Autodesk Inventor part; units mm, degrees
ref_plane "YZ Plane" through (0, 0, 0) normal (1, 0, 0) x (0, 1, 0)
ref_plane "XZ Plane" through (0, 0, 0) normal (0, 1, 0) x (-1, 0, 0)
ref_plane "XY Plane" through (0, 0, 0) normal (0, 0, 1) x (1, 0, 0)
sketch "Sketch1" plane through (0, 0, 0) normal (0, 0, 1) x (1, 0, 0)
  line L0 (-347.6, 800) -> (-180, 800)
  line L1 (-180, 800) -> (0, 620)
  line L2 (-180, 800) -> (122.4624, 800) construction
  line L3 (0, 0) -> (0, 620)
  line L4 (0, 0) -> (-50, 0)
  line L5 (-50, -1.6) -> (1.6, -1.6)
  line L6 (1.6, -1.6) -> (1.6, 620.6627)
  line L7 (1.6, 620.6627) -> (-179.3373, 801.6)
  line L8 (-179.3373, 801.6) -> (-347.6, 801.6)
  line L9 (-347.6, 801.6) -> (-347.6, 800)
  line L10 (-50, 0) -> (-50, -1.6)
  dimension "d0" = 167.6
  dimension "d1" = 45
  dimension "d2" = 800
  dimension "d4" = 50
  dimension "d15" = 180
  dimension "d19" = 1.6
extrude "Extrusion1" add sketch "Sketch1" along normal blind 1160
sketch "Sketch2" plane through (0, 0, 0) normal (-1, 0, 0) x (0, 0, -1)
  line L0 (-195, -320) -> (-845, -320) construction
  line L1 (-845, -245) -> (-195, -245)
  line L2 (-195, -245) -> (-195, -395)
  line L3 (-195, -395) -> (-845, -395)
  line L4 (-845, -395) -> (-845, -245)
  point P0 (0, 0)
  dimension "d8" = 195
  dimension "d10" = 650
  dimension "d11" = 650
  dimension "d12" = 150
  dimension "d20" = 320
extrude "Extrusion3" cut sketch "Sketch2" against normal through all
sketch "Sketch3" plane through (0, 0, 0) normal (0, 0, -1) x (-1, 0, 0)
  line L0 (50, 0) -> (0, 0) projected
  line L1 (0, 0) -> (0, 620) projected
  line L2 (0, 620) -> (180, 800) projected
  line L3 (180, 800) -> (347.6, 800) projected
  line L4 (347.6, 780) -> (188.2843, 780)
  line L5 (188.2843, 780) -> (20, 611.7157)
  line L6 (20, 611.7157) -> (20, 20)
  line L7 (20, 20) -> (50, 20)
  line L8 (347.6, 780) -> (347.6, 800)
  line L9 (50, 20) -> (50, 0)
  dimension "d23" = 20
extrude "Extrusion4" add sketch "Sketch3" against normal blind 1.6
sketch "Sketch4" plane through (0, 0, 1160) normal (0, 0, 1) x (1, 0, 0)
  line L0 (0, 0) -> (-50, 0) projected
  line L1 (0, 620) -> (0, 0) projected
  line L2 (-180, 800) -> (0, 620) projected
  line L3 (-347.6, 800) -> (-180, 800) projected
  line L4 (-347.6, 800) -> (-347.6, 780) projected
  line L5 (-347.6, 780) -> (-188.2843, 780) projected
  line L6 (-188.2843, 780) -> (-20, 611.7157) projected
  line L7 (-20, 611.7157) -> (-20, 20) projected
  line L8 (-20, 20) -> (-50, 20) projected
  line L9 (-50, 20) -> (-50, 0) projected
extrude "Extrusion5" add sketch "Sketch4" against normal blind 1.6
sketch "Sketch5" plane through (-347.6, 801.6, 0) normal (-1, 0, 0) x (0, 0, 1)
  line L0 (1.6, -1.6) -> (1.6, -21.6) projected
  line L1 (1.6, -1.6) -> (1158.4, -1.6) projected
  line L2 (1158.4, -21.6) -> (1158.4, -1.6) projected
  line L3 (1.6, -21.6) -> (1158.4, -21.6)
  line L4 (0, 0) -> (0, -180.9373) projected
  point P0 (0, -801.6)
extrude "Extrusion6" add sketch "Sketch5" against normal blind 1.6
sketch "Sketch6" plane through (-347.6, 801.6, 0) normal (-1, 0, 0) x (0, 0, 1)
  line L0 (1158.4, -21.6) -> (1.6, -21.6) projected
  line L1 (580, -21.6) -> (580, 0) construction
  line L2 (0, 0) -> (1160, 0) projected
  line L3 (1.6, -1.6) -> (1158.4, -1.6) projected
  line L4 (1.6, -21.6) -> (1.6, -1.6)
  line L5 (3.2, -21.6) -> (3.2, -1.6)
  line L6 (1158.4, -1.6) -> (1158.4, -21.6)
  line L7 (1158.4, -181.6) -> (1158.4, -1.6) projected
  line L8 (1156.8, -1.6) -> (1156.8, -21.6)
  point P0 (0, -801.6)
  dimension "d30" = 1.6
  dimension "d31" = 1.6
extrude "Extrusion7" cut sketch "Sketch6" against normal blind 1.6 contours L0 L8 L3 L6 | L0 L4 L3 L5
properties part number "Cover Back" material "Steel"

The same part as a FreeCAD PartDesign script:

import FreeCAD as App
import Part
import Sketcher
Q = App.Units.Quantity

doc = App.newDocument("Part")
params = doc.addObject("Spreadsheet::Sheet", "Params")
for row, (alias, value) in enumerate([
    ("sketch1_width", "50 mm"),
    ("sketch1_width2", "167.6 mm"),
    ("sketch1_height", "1.6 mm"),
    ("pad1_length", "1160 mm"),
    ("sketch2_width", "150 mm"),
    ("sketch2_height", "650 mm"),
    ("sketch3_height", "20 mm"),
    ("sketch3_width", "50 mm"),
    ("sketch3_height2", "620 mm"),
    ("sketch3_width2", "167.6 mm"),
    ("sketch3_length", "237.99 mm"),
    ("pad2_length", "1.6 mm"),
    ("sketch4_width", "50 mm"),
    ("sketch4_width2", "30 mm"),
    ("sketch4_height", "620 mm"),
    ("sketch4_height2", "20 mm"),
    ("sketch4_width3", "167.6 mm"),
    ("pad3_length", "1.6 mm"),
    ("sketch5_width", "20 mm"),
    ("sketch5_height", "1156.8 mm"),
    ("pad4_length", "1.6 mm"),
    ("sketch6_height", "1.6 mm"),
    ("sketch6_width", "20 mm"),
    ("pocket2_length", "1.6 mm"),
], start=1):
    params.set(f"A{row}", alias)
    params.set(f"B{row}", "=" + value)
    params.setAlias(f"B{row}", alias)

body = doc.addObject("PartDesign::Body", "Body")

# Sketch on XY plane
sketch1 = body.newObject("Sketcher::SketchObject", "Sketch")
sketch1.AttachmentSupport = (doc.getObject("XY_Plane"), [""])
sketch1.MapMode = "FlatFace"
sketch1.addGeometry(Part.LineSegment(App.Vector(-347.6, 801.6, 0), App.Vector(-347.6, 800, 0)), False)
sketch1.addGeometry(Part.LineSegment(App.Vector(-347.6, 800, 0), App.Vector(-180, 800, 0)), False)
sketch1.addGeometry(Part.LineSegment(App.Vector(-180, 800, 0), App.Vector(0, 620, 0)), False)
sketch1.addGeometry(Part.LineSegment(App.Vector(0, 620, 0), App.Vector(0, 0, 0)), False)
sketch1.addGeometry(Part.LineSegment(App.Vector(0, 0, 0), App.Vector(-50, 0, 0)), False)
sketch1.addGeometry(Part.LineSegment(App.Vector(-50, 0, 0), App.Vector(-50, -1.6, 0)), False)
sketch1.addGeometry(Part.LineSegment(App.Vector(-50, -1.6, 0), App.Vector(1.6, -1.6, 0)), False)
sketch1.addGeometry(Part.LineSegment(App.Vector(1.6, -1.6, 0), App.Vector(1.6, 620.6627, 0)), False)
sketch1.addGeometry(Part.LineSegment(App.Vector(1.6, 620.6627, 0), App.Vector(-179.3373, 801.6, 0)), False)
sketch1.addGeometry(Part.LineSegment(App.Vector(-179.3373, 801.6, 0), App.Vector(-347.6, 801.6, 0)), False)
sketch1.addConstraint(Sketcher.Constraint("Coincident", 0, 2, 1, 1))
sketch1.addConstraint(Sketcher.Constraint("Coincident", 1, 2, 2, 1))
sketch1.addConstraint(Sketcher.Constraint("Coincident", 2, 2, 3, 1))
sketch1.addConstraint(Sketcher.Constraint("Coincident", 3, 2, 4, 1))
sketch1.addConstraint(Sketcher.Constraint("Coincident", 4, 2, 5, 1))
sketch1.addConstraint(Sketcher.Constraint("Coincident", 5, 2, 6, 1))
sketch1.addConstraint(Sketcher.Constraint("Coincident", 6, 2, 7, 1))
sketch1.addConstraint(Sketcher.Constraint("Coincident", 7, 2, 8, 1))
sketch1.addConstraint(Sketcher.Constraint("Coincident", 8, 2, 9, 1))
sketch1.addConstraint(Sketcher.Constraint("Coincident", 9, 2, 0, 1))
sketch1.addConstraint(Sketcher.Constraint("Vertical", 0))
sketch1.addConstraint(Sketcher.Constraint("Horizontal", 1))
sketch1.addConstraint(Sketcher.Constraint("Vertical", 3))
sketch1.addConstraint(Sketcher.Constraint("Horizontal", 4))
sketch1.addConstraint(Sketcher.Constraint("Vertical", 5))
sketch1.addConstraint(Sketcher.Constraint("Horizontal", 6))
sketch1.addConstraint(Sketcher.Constraint("Vertical", 7))
sketch1.addConstraint(Sketcher.Constraint("Horizontal", 9))
sketch1.addConstraint(Sketcher.Constraint("Coincident", 3, 2, -1, 1))
sketch1.addConstraint(Sketcher.Constraint("Parallel", 2, 8))
sketch1.addConstraint(Sketcher.Constraint("Equal", 0, 5))
sketch1.addConstraint(Sketcher.Constraint("DistanceX", 4, 2, 4, 1, 50.0))
sketch1.addConstraint(Sketcher.Constraint("Angle", 2, Q("-45 deg")))
sketch1.addConstraint(Sketcher.Constraint("DistanceX", 1, 1, 1, 2, 167.6))
sketch1.addConstraint(Sketcher.Constraint("DistanceY", 0, 2, 0, 1, 1.6))
sketch1.addConstraint(Sketcher.Constraint("DistanceY", -1, 1, 0, 2, 800.0))
sketch1.addConstraint(Sketcher.Constraint("DistanceX", 1, 2, -1, 1, 180.0))
sketch1.addConstraint(Sketcher.Constraint("DistanceX", -1, 1, 6, 2, 1.6))
sketch1.addConstraint(Sketcher.Constraint("Distance", 8, 255.884))
sketch1.setExpression("Constraints[21]", "Params.sketch1_width")
sketch1.setExpression("Constraints[23]", "Params.sketch1_width2")
sketch1.setExpression("Constraints[24]", "Params.sketch1_height")
pad1 = body.newObject("PartDesign::Pad", "Pad")
pad1.Profile = sketch1
pad1.setExpression("Length", "Params.pad1_length")

# Sketch on YZ plane
sketch2 = body.newObject("Sketcher::SketchObject", "Sketch001")
sketch2.AttachmentSupport = (doc.getObject("YZ_Plane"), [""])
sketch2.MapMode = "FlatFace"
sketch2.addGeometry(Part.LineSegment(App.Vector(245, 195, 0), App.Vector(245, 845, 0)), False)
sketch2.addGeometry(Part.LineSegment(App.Vector(245, 845, 0), App.Vector(395, 845, 0)), False)
sketch2.addGeometry(Part.LineSegment(App.Vector(395, 845, 0), App.Vector(395, 195, 0)), False)
sketch2.addGeometry(Part.LineSegment(App.Vector(395, 195, 0), App.Vector(245, 195, 0)), False)
sketch2.addConstraint(Sketcher.Constraint("Coincident", 0, 2, 1, 1))
sketch2.addConstraint(Sketcher.Constraint("Coincident", 1, 2, 2, 1))
sketch2.addConstraint(Sketcher.Constraint("Coincident", 2, 2, 3, 1))
sketch2.addConstraint(Sketcher.Constraint("Coincident", 3, 2, 0, 1))
sketch2.addConstraint(Sketcher.Constraint("Vertical", 0))
sketch2.addConstraint(Sketcher.Constraint("Horizontal", 1))
sketch2.addConstraint(Sketcher.Constraint("Vertical", 2))
sketch2.addConstraint(Sketcher.Constraint("Horizontal", 3))
sketch2.addConstraint(Sketcher.Constraint("DistanceX", 1, 1, 1, 2, 150.0))
sketch2.addConstraint(Sketcher.Constraint("DistanceY", 0, 1, 0, 2, 650.0))
sketch2.addConstraint(Sketcher.Constraint("DistanceY", -1, 1, 2, 2, 195.0))
sketch2.addConstraint(Sketcher.Constraint("DistanceX", -1, 1, 0, 2, 245.0))
sketch2.setExpression("Constraints[8]", "Params.sketch2_width")
sketch2.setExpression("Constraints[9]", "Params.sketch2_height")
pocket1 = body.newObject("PartDesign::Pocket", "Pocket")
pocket1.Profile = sketch2
pocket1.Type = "ThroughAll"
pocket1.Reversed = True

# Sketch on XY plane
sketch3 = body.newObject("Sketcher::SketchObject", "Sketch002")
sketch3.AttachmentSupport = (doc.getObject("XY_Plane"), [""])
sketch3.MapMode = "FlatFace"
sketch3.addGeometry(Part.LineSegment(App.Vector(0, 0, 0), App.Vector(-50, 0, 0)), False)
sketch3.addGeometry(Part.LineSegment(App.Vector(-50, 0, 0), App.Vector(-50, 20, 0)), False)
sketch3.addGeometry(Part.LineSegment(App.Vector(-50, 20, 0), App.Vector(-20, 20, 0)), False)
sketch3.addGeometry(Part.LineSegment(App.Vector(-20, 20, 0), App.Vector(-20, 611.7157, 0)), False)
sketch3.addGeometry(Part.LineSegment(App.Vector(-20, 611.7157, 0), App.Vector(-188.2843, 780, 0)), False)
sketch3.addGeometry(Part.LineSegment(App.Vector(-188.2843, 780, 0), App.Vector(-347.6, 780, 0)), False)
sketch3.addGeometry(Part.LineSegment(App.Vector(-347.6, 780, 0), App.Vector(-347.6, 800, 0)), False)
sketch3.addGeometry(Part.LineSegment(App.Vector(-347.6, 800, 0), App.Vector(-180, 800, 0)), False)
sketch3.addGeometry(Part.LineSegment(App.Vector(-180, 800, 0), App.Vector(0, 620, 0)), False)
sketch3.addGeometry(Part.LineSegment(App.Vector(0, 620, 0), App.Vector(0, 0, 0)), False)
sketch3.addConstraint(Sketcher.Constraint("Coincident", 0, 2, 1, 1))
sketch3.addConstraint(Sketcher.Constraint("Coincident", 1, 2, 2, 1))
sketch3.addConstraint(Sketcher.Constraint("Coincident", 2, 2, 3, 1))
sketch3.addConstraint(Sketcher.Constraint("Coincident", 3, 2, 4, 1))
sketch3.addConstraint(Sketcher.Constraint("Coincident", 4, 2, 5, 1))
sketch3.addConstraint(Sketcher.Constraint("Coincident", 5, 2, 6, 1))
sketch3.addConstraint(Sketcher.Constraint("Coincident", 6, 2, 7, 1))
sketch3.addConstraint(Sketcher.Constraint("Coincident", 7, 2, 8, 1))
sketch3.addConstraint(Sketcher.Constraint("Coincident", 8, 2, 9, 1))
sketch3.addConstraint(Sketcher.Constraint("Coincident", 9, 2, 0, 1))
sketch3.addConstraint(Sketcher.Constraint("Horizontal", 0))
sketch3.addConstraint(Sketcher.Constraint("Vertical", 1))
sketch3.addConstraint(Sketcher.Constraint("Horizontal", 2))
sketch3.addConstraint(Sketcher.Constraint("Vertical", 3))
sketch3.addConstraint(Sketcher.Constraint("Horizontal", 5))
sketch3.addConstraint(Sketcher.Constraint("Vertical", 6))
sketch3.addConstraint(Sketcher.Constraint("Horizontal", 7))
sketch3.addConstraint(Sketcher.Constraint("Vertical", 9))
sketch3.addConstraint(Sketcher.Constraint("Coincident", 9, 2, -1, 1))
sketch3.addConstraint(Sketcher.Constraint("Parallel", 4, 8))
sketch3.addConstraint(Sketcher.Constraint("Equal", 1, 6))
sketch3.addConstraint(Sketcher.Constraint("DistanceY", 1, 1, 1, 2, 20.0))
sketch3.addConstraint(Sketcher.Constraint("DistanceX", 2, 2, -1, 1, 20.0))
sketch3.addConstraint(Sketcher.Constraint("DistanceX", 0, 2, 0, 1, 50.0))
sketch3.addConstraint(Sketcher.Constraint("DistanceY", 9, 2, 9, 1, 620.0))
sketch3.addConstraint(Sketcher.Constraint("Angle", 4, Q("135 deg")))
sketch3.addConstraint(Sketcher.Constraint("DistanceX", 7, 1, 7, 2, 167.6))
sketch3.addConstraint(Sketcher.Constraint("DistanceY", -1, 1, 4, 2, 780.0))
sketch3.addConstraint(Sketcher.Constraint("Distance", 4, 237.99))
sketch3.setExpression("Constraints[21]", "Params.sketch3_height")
sketch3.setExpression("Constraints[23]", "Params.sketch3_width")
sketch3.setExpression("Constraints[24]", "Params.sketch3_height2")
sketch3.setExpression("Constraints[26]", "Params.sketch3_width2")
sketch3.setExpression("Constraints[28]", "Params.sketch3_length")
pad2 = body.newObject("PartDesign::Pad", "Pad001")
pad2.Profile = sketch3
pad2.setExpression("Length", "Params.pad2_length")

# Sketch on XY plane
sketch4 = body.newObject("Sketcher::SketchObject", "Sketch003")
sketch4.AttachmentSupport = (doc.getObject("XY_Plane"), [""])
sketch4.MapMode = "FlatFace"
sketch4.AttachmentOffset = App.Placement(App.Vector(0, 0, 1160), App.Rotation())
sketch4.addGeometry(Part.LineSegment(App.Vector(-50, 0, 0), App.Vector(0, 0, 0)), False)
sketch4.addGeometry(Part.LineSegment(App.Vector(0, 0, 0), App.Vector(0, 620, 0)), False)
sketch4.addGeometry(Part.LineSegment(App.Vector(0, 620, 0), App.Vector(-180, 800, 0)), False)
sketch4.addGeometry(Part.LineSegment(App.Vector(-180, 800, 0), App.Vector(-347.6, 800, 0)), False)
sketch4.addGeometry(Part.LineSegment(App.Vector(-347.6, 800, 0), App.Vector(-347.6, 780, 0)), False)
sketch4.addGeometry(Part.LineSegment(App.Vector(-347.6, 780, 0), App.Vector(-188.2843, 780, 0)), False)
sketch4.addGeometry(Part.LineSegment(App.Vector(-188.2843, 780, 0), App.Vector(-20, 611.7157, 0)), False)
sketch4.addGeometry(Part.LineSegment(App.Vector(-20, 611.7157, 0), App.Vector(-20, 20, 0)), False)
sketch4.addGeometry(Part.LineSegment(App.Vector(-20, 20, 0), App.Vector(-50, 20, 0)), False)
sketch4.addGeometry(Part.LineSegment(App.Vector(-50, 20, 0), App.Vector(-50, 0, 0)), False)
sketch4.addConstraint(Sketcher.Constraint("Coincident", 0, 2, 1, 1))
sketch4.addConstraint(Sketcher.Constraint("Coincident", 1, 2, 2, 1))
sketch4.addConstraint(Sketcher.Constraint("Coincident", 2, 2, 3, 1))
sketch4.addConstraint(Sketcher.Constraint("Coincident", 3, 2, 4, 1))
sketch4.addConstraint(Sketcher.Constraint("Coincident", 4, 2, 5, 1))
sketch4.addConstraint(Sketcher.Constraint("Coincident", 5, 2, 6, 1))
sketch4.addConstraint(Sketcher.Constraint("Coincident", 6, 2, 7, 1))
sketch4.addConstraint(Sketcher.Constraint("Coincident", 7, 2, 8, 1))
sketch4.addConstraint(Sketcher.Constraint("Coincident", 8, 2, 9, 1))
sketch4.addConstraint(Sketcher.Constraint("Coincident", 9, 2, 0, 1))
sketch4.addConstraint(Sketcher.Constraint("Horizontal", 0))
sketch4.addConstraint(Sketcher.Constraint("Vertical", 1))
sketch4.addConstraint(Sketcher.Constraint("Horizontal", 3))
sketch4.addConstraint(Sketcher.Constraint("Vertical", 4))
sketch4.addConstraint(Sketcher.Constraint("Horizontal", 5))
sketch4.addConstraint(Sketcher.Constraint("Vertical", 7))
sketch4.addConstraint(Sketcher.Constraint("Horizontal", 8))
sketch4.addConstraint(Sketcher.Constraint("Vertical", 9))
sketch4.addConstraint(Sketcher.Constraint("Coincident", 0, 2, -1, 1))
sketch4.addConstraint(Sketcher.Constraint("Parallel", 2, 6))
sketch4.addConstraint(Sketcher.Constraint("Equal", 4, 9))
sketch4.addConstraint(Sketcher.Constraint("DistanceX", 0, 1, 0, 2, 50.0))
sketch4.addConstraint(Sketcher.Constraint("DistanceX", 8, 2, 8, 1, 30.0))
sketch4.addConstraint(Sketcher.Constraint("DistanceY", 1, 1, 1, 2, 620.0))
sketch4.addConstraint(Sketcher.Constraint("DistanceY", 4, 2, 4, 1, 20.0))
sketch4.addConstraint(Sketcher.Constraint("Angle", 2, Q("135 deg")))
sketch4.addConstraint(Sketcher.Constraint("DistanceX", 3, 2, 3, 1, 167.6))
sketch4.addConstraint(Sketcher.Constraint("DistanceX", 2, 2, -1, 1, 180.0))
sketch4.addConstraint(Sketcher.Constraint("Distance", 6, 237.99))
sketch4.setExpression("Constraints[21]", "Params.sketch4_width")
sketch4.setExpression("Constraints[22]", "Params.sketch4_width2")
sketch4.setExpression("Constraints[23]", "Params.sketch4_height")
sketch4.setExpression("Constraints[24]", "Params.sketch4_height2")
sketch4.setExpression("Constraints[26]", "Params.sketch4_width3")
pad3 = body.newObject("PartDesign::Pad", "Pad002")
pad3.Profile = sketch4
pad3.setExpression("Length", "Params.pad3_length")
pad3.Reversed = True

# Sketch on YZ plane
sketch5 = body.newObject("Sketcher::SketchObject", "Sketch004")
sketch5.AttachmentSupport = (doc.getObject("YZ_Plane"), [""])
sketch5.MapMode = "FlatFace"
sketch5.AttachmentOffset = App.Placement(App.Vector(0, 0, -347.6), App.Rotation())
sketch5.addGeometry(Part.LineSegment(App.Vector(800, 1158.4, 0), App.Vector(800, 1.6, 0)), False)
sketch5.addGeometry(Part.LineSegment(App.Vector(800, 1.6, 0), App.Vector(780, 1.6, 0)), False)
sketch5.addGeometry(Part.LineSegment(App.Vector(780, 1.6, 0), App.Vector(780, 1158.4, 0)), False)
sketch5.addGeometry(Part.LineSegment(App.Vector(780, 1158.4, 0), App.Vector(800, 1158.4, 0)), False)
sketch5.addConstraint(Sketcher.Constraint("Coincident", 0, 2, 1, 1))
sketch5.addConstraint(Sketcher.Constraint("Coincident", 1, 2, 2, 1))
sketch5.addConstraint(Sketcher.Constraint("Coincident", 2, 2, 3, 1))
sketch5.addConstraint(Sketcher.Constraint("Coincident", 3, 2, 0, 1))
sketch5.addConstraint(Sketcher.Constraint("Vertical", 0))
sketch5.addConstraint(Sketcher.Constraint("Horizontal", 1))
sketch5.addConstraint(Sketcher.Constraint("Vertical", 2))
sketch5.addConstraint(Sketcher.Constraint("Horizontal", 3))
sketch5.addConstraint(Sketcher.Constraint("DistanceX", 1, 2, 1, 1, 20.0))
sketch5.addConstraint(Sketcher.Constraint("DistanceY", 0, 2, 0, 1, 1156.8))
sketch5.addConstraint(Sketcher.Constraint("DistanceX", -1, 1, 0, 2, 800.0))
sketch5.addConstraint(Sketcher.Constraint("DistanceY", -1, 1, 0, 2, 1.6))
sketch5.setExpression("Constraints[8]", "Params.sketch5_width")
sketch5.setExpression("Constraints[9]", "Params.sketch5_height")
pad4 = body.newObject("PartDesign::Pad", "Pad003")
pad4.Profile = sketch5
pad4.setExpression("Length", "Params.pad4_length")

# Sketch on YZ plane
sketch6 = body.newObject("Sketcher::SketchObject", "Sketch005")
sketch6.AttachmentSupport = (doc.getObject("YZ_Plane"), [""])
sketch6.MapMode = "FlatFace"
sketch6.AttachmentOffset = App.Placement(App.Vector(0, 0, -347.6), App.Rotation())
sketch6.addGeometry(Part.LineSegment(App.Vector(780, 1156.8, 0), App.Vector(780, 1158.4, 0)), False)
sketch6.addGeometry(Part.LineSegment(App.Vector(780, 1158.4, 0), App.Vector(800, 1158.4, 0)), False)
sketch6.addGeometry(Part.LineSegment(App.Vector(800, 1158.4, 0), App.Vector(800, 1156.8, 0)), False)
sketch6.addGeometry(Part.LineSegment(App.Vector(800, 1156.8, 0), App.Vector(780, 1156.8, 0)), False)
sketch6.addGeometry(Part.LineSegment(App.Vector(780, 1.6, 0), App.Vector(780, 3.2, 0)), False)
sketch6.addGeometry(Part.LineSegment(App.Vector(780, 3.2, 0), App.Vector(800, 3.2, 0)), False)
sketch6.addGeometry(Part.LineSegment(App.Vector(800, 3.2, 0), App.Vector(800, 1.6, 0)), False)
sketch6.addGeometry(Part.LineSegment(App.Vector(800, 1.6, 0), App.Vector(780, 1.6, 0)), False)
sketch6.addConstraint(Sketcher.Constraint("Coincident", 0, 2, 1, 1))
sketch6.addConstraint(Sketcher.Constraint("Coincident", 1, 2, 2, 1))
sketch6.addConstraint(Sketcher.Constraint("Coincident", 2, 2, 3, 1))
sketch6.addConstraint(Sketcher.Constraint("Coincident", 3, 2, 0, 1))
sketch6.addConstraint(Sketcher.Constraint("Coincident", 4, 2, 5, 1))
sketch6.addConstraint(Sketcher.Constraint("Coincident", 5, 2, 6, 1))
sketch6.addConstraint(Sketcher.Constraint("Coincident", 6, 2, 7, 1))
sketch6.addConstraint(Sketcher.Constraint("Coincident", 7, 2, 4, 1))
sketch6.addConstraint(Sketcher.Constraint("Vertical", 0))
sketch6.addConstraint(Sketcher.Constraint("Horizontal", 1))
sketch6.addConstraint(Sketcher.Constraint("Vertical", 2))
sketch6.addConstraint(Sketcher.Constraint("Horizontal", 3))
sketch6.addConstraint(Sketcher.Constraint("Vertical", 4))
sketch6.addConstraint(Sketcher.Constraint("Horizontal", 5))
sketch6.addConstraint(Sketcher.Constraint("Vertical", 6))
sketch6.addConstraint(Sketcher.Constraint("Horizontal", 7))
sketch6.addConstraint(Sketcher.Constraint("Vertical", 3, 2, 4, 2))
sketch6.addConstraint(Sketcher.Constraint("Vertical", 2, 2, 5, 2))
sketch6.addConstraint(Sketcher.Constraint("Equal", 2, 4))
sketch6.addConstraint(Sketcher.Constraint("DistanceY", 0, 1, 0, 2, 1.6))
sketch6.addConstraint(Sketcher.Constraint("DistanceY", -1, 1, 6, 2, 1.6))
sketch6.addConstraint(Sketcher.Constraint("DistanceX", 1, 1, 1, 2, 20.0))
sketch6.addConstraint(Sketcher.Constraint("DistanceX", -1, 1, 0, 2, 780.0))
sketch6.addConstraint(Sketcher.Constraint("DistanceY", -1, 1, 0, 2, 1158.4))
sketch6.setExpression("Constraints[19]", "Params.sketch6_height")
sketch6.setExpression("Constraints[21]", "Params.sketch6_width")
pocket2 = body.newObject("PartDesign::Pocket", "Pocket001")
pocket2.Profile = sketch6
pocket2.setExpression("Length", "Params.pocket2_length")
pocket2.Reversed = True

doc.recompute()
